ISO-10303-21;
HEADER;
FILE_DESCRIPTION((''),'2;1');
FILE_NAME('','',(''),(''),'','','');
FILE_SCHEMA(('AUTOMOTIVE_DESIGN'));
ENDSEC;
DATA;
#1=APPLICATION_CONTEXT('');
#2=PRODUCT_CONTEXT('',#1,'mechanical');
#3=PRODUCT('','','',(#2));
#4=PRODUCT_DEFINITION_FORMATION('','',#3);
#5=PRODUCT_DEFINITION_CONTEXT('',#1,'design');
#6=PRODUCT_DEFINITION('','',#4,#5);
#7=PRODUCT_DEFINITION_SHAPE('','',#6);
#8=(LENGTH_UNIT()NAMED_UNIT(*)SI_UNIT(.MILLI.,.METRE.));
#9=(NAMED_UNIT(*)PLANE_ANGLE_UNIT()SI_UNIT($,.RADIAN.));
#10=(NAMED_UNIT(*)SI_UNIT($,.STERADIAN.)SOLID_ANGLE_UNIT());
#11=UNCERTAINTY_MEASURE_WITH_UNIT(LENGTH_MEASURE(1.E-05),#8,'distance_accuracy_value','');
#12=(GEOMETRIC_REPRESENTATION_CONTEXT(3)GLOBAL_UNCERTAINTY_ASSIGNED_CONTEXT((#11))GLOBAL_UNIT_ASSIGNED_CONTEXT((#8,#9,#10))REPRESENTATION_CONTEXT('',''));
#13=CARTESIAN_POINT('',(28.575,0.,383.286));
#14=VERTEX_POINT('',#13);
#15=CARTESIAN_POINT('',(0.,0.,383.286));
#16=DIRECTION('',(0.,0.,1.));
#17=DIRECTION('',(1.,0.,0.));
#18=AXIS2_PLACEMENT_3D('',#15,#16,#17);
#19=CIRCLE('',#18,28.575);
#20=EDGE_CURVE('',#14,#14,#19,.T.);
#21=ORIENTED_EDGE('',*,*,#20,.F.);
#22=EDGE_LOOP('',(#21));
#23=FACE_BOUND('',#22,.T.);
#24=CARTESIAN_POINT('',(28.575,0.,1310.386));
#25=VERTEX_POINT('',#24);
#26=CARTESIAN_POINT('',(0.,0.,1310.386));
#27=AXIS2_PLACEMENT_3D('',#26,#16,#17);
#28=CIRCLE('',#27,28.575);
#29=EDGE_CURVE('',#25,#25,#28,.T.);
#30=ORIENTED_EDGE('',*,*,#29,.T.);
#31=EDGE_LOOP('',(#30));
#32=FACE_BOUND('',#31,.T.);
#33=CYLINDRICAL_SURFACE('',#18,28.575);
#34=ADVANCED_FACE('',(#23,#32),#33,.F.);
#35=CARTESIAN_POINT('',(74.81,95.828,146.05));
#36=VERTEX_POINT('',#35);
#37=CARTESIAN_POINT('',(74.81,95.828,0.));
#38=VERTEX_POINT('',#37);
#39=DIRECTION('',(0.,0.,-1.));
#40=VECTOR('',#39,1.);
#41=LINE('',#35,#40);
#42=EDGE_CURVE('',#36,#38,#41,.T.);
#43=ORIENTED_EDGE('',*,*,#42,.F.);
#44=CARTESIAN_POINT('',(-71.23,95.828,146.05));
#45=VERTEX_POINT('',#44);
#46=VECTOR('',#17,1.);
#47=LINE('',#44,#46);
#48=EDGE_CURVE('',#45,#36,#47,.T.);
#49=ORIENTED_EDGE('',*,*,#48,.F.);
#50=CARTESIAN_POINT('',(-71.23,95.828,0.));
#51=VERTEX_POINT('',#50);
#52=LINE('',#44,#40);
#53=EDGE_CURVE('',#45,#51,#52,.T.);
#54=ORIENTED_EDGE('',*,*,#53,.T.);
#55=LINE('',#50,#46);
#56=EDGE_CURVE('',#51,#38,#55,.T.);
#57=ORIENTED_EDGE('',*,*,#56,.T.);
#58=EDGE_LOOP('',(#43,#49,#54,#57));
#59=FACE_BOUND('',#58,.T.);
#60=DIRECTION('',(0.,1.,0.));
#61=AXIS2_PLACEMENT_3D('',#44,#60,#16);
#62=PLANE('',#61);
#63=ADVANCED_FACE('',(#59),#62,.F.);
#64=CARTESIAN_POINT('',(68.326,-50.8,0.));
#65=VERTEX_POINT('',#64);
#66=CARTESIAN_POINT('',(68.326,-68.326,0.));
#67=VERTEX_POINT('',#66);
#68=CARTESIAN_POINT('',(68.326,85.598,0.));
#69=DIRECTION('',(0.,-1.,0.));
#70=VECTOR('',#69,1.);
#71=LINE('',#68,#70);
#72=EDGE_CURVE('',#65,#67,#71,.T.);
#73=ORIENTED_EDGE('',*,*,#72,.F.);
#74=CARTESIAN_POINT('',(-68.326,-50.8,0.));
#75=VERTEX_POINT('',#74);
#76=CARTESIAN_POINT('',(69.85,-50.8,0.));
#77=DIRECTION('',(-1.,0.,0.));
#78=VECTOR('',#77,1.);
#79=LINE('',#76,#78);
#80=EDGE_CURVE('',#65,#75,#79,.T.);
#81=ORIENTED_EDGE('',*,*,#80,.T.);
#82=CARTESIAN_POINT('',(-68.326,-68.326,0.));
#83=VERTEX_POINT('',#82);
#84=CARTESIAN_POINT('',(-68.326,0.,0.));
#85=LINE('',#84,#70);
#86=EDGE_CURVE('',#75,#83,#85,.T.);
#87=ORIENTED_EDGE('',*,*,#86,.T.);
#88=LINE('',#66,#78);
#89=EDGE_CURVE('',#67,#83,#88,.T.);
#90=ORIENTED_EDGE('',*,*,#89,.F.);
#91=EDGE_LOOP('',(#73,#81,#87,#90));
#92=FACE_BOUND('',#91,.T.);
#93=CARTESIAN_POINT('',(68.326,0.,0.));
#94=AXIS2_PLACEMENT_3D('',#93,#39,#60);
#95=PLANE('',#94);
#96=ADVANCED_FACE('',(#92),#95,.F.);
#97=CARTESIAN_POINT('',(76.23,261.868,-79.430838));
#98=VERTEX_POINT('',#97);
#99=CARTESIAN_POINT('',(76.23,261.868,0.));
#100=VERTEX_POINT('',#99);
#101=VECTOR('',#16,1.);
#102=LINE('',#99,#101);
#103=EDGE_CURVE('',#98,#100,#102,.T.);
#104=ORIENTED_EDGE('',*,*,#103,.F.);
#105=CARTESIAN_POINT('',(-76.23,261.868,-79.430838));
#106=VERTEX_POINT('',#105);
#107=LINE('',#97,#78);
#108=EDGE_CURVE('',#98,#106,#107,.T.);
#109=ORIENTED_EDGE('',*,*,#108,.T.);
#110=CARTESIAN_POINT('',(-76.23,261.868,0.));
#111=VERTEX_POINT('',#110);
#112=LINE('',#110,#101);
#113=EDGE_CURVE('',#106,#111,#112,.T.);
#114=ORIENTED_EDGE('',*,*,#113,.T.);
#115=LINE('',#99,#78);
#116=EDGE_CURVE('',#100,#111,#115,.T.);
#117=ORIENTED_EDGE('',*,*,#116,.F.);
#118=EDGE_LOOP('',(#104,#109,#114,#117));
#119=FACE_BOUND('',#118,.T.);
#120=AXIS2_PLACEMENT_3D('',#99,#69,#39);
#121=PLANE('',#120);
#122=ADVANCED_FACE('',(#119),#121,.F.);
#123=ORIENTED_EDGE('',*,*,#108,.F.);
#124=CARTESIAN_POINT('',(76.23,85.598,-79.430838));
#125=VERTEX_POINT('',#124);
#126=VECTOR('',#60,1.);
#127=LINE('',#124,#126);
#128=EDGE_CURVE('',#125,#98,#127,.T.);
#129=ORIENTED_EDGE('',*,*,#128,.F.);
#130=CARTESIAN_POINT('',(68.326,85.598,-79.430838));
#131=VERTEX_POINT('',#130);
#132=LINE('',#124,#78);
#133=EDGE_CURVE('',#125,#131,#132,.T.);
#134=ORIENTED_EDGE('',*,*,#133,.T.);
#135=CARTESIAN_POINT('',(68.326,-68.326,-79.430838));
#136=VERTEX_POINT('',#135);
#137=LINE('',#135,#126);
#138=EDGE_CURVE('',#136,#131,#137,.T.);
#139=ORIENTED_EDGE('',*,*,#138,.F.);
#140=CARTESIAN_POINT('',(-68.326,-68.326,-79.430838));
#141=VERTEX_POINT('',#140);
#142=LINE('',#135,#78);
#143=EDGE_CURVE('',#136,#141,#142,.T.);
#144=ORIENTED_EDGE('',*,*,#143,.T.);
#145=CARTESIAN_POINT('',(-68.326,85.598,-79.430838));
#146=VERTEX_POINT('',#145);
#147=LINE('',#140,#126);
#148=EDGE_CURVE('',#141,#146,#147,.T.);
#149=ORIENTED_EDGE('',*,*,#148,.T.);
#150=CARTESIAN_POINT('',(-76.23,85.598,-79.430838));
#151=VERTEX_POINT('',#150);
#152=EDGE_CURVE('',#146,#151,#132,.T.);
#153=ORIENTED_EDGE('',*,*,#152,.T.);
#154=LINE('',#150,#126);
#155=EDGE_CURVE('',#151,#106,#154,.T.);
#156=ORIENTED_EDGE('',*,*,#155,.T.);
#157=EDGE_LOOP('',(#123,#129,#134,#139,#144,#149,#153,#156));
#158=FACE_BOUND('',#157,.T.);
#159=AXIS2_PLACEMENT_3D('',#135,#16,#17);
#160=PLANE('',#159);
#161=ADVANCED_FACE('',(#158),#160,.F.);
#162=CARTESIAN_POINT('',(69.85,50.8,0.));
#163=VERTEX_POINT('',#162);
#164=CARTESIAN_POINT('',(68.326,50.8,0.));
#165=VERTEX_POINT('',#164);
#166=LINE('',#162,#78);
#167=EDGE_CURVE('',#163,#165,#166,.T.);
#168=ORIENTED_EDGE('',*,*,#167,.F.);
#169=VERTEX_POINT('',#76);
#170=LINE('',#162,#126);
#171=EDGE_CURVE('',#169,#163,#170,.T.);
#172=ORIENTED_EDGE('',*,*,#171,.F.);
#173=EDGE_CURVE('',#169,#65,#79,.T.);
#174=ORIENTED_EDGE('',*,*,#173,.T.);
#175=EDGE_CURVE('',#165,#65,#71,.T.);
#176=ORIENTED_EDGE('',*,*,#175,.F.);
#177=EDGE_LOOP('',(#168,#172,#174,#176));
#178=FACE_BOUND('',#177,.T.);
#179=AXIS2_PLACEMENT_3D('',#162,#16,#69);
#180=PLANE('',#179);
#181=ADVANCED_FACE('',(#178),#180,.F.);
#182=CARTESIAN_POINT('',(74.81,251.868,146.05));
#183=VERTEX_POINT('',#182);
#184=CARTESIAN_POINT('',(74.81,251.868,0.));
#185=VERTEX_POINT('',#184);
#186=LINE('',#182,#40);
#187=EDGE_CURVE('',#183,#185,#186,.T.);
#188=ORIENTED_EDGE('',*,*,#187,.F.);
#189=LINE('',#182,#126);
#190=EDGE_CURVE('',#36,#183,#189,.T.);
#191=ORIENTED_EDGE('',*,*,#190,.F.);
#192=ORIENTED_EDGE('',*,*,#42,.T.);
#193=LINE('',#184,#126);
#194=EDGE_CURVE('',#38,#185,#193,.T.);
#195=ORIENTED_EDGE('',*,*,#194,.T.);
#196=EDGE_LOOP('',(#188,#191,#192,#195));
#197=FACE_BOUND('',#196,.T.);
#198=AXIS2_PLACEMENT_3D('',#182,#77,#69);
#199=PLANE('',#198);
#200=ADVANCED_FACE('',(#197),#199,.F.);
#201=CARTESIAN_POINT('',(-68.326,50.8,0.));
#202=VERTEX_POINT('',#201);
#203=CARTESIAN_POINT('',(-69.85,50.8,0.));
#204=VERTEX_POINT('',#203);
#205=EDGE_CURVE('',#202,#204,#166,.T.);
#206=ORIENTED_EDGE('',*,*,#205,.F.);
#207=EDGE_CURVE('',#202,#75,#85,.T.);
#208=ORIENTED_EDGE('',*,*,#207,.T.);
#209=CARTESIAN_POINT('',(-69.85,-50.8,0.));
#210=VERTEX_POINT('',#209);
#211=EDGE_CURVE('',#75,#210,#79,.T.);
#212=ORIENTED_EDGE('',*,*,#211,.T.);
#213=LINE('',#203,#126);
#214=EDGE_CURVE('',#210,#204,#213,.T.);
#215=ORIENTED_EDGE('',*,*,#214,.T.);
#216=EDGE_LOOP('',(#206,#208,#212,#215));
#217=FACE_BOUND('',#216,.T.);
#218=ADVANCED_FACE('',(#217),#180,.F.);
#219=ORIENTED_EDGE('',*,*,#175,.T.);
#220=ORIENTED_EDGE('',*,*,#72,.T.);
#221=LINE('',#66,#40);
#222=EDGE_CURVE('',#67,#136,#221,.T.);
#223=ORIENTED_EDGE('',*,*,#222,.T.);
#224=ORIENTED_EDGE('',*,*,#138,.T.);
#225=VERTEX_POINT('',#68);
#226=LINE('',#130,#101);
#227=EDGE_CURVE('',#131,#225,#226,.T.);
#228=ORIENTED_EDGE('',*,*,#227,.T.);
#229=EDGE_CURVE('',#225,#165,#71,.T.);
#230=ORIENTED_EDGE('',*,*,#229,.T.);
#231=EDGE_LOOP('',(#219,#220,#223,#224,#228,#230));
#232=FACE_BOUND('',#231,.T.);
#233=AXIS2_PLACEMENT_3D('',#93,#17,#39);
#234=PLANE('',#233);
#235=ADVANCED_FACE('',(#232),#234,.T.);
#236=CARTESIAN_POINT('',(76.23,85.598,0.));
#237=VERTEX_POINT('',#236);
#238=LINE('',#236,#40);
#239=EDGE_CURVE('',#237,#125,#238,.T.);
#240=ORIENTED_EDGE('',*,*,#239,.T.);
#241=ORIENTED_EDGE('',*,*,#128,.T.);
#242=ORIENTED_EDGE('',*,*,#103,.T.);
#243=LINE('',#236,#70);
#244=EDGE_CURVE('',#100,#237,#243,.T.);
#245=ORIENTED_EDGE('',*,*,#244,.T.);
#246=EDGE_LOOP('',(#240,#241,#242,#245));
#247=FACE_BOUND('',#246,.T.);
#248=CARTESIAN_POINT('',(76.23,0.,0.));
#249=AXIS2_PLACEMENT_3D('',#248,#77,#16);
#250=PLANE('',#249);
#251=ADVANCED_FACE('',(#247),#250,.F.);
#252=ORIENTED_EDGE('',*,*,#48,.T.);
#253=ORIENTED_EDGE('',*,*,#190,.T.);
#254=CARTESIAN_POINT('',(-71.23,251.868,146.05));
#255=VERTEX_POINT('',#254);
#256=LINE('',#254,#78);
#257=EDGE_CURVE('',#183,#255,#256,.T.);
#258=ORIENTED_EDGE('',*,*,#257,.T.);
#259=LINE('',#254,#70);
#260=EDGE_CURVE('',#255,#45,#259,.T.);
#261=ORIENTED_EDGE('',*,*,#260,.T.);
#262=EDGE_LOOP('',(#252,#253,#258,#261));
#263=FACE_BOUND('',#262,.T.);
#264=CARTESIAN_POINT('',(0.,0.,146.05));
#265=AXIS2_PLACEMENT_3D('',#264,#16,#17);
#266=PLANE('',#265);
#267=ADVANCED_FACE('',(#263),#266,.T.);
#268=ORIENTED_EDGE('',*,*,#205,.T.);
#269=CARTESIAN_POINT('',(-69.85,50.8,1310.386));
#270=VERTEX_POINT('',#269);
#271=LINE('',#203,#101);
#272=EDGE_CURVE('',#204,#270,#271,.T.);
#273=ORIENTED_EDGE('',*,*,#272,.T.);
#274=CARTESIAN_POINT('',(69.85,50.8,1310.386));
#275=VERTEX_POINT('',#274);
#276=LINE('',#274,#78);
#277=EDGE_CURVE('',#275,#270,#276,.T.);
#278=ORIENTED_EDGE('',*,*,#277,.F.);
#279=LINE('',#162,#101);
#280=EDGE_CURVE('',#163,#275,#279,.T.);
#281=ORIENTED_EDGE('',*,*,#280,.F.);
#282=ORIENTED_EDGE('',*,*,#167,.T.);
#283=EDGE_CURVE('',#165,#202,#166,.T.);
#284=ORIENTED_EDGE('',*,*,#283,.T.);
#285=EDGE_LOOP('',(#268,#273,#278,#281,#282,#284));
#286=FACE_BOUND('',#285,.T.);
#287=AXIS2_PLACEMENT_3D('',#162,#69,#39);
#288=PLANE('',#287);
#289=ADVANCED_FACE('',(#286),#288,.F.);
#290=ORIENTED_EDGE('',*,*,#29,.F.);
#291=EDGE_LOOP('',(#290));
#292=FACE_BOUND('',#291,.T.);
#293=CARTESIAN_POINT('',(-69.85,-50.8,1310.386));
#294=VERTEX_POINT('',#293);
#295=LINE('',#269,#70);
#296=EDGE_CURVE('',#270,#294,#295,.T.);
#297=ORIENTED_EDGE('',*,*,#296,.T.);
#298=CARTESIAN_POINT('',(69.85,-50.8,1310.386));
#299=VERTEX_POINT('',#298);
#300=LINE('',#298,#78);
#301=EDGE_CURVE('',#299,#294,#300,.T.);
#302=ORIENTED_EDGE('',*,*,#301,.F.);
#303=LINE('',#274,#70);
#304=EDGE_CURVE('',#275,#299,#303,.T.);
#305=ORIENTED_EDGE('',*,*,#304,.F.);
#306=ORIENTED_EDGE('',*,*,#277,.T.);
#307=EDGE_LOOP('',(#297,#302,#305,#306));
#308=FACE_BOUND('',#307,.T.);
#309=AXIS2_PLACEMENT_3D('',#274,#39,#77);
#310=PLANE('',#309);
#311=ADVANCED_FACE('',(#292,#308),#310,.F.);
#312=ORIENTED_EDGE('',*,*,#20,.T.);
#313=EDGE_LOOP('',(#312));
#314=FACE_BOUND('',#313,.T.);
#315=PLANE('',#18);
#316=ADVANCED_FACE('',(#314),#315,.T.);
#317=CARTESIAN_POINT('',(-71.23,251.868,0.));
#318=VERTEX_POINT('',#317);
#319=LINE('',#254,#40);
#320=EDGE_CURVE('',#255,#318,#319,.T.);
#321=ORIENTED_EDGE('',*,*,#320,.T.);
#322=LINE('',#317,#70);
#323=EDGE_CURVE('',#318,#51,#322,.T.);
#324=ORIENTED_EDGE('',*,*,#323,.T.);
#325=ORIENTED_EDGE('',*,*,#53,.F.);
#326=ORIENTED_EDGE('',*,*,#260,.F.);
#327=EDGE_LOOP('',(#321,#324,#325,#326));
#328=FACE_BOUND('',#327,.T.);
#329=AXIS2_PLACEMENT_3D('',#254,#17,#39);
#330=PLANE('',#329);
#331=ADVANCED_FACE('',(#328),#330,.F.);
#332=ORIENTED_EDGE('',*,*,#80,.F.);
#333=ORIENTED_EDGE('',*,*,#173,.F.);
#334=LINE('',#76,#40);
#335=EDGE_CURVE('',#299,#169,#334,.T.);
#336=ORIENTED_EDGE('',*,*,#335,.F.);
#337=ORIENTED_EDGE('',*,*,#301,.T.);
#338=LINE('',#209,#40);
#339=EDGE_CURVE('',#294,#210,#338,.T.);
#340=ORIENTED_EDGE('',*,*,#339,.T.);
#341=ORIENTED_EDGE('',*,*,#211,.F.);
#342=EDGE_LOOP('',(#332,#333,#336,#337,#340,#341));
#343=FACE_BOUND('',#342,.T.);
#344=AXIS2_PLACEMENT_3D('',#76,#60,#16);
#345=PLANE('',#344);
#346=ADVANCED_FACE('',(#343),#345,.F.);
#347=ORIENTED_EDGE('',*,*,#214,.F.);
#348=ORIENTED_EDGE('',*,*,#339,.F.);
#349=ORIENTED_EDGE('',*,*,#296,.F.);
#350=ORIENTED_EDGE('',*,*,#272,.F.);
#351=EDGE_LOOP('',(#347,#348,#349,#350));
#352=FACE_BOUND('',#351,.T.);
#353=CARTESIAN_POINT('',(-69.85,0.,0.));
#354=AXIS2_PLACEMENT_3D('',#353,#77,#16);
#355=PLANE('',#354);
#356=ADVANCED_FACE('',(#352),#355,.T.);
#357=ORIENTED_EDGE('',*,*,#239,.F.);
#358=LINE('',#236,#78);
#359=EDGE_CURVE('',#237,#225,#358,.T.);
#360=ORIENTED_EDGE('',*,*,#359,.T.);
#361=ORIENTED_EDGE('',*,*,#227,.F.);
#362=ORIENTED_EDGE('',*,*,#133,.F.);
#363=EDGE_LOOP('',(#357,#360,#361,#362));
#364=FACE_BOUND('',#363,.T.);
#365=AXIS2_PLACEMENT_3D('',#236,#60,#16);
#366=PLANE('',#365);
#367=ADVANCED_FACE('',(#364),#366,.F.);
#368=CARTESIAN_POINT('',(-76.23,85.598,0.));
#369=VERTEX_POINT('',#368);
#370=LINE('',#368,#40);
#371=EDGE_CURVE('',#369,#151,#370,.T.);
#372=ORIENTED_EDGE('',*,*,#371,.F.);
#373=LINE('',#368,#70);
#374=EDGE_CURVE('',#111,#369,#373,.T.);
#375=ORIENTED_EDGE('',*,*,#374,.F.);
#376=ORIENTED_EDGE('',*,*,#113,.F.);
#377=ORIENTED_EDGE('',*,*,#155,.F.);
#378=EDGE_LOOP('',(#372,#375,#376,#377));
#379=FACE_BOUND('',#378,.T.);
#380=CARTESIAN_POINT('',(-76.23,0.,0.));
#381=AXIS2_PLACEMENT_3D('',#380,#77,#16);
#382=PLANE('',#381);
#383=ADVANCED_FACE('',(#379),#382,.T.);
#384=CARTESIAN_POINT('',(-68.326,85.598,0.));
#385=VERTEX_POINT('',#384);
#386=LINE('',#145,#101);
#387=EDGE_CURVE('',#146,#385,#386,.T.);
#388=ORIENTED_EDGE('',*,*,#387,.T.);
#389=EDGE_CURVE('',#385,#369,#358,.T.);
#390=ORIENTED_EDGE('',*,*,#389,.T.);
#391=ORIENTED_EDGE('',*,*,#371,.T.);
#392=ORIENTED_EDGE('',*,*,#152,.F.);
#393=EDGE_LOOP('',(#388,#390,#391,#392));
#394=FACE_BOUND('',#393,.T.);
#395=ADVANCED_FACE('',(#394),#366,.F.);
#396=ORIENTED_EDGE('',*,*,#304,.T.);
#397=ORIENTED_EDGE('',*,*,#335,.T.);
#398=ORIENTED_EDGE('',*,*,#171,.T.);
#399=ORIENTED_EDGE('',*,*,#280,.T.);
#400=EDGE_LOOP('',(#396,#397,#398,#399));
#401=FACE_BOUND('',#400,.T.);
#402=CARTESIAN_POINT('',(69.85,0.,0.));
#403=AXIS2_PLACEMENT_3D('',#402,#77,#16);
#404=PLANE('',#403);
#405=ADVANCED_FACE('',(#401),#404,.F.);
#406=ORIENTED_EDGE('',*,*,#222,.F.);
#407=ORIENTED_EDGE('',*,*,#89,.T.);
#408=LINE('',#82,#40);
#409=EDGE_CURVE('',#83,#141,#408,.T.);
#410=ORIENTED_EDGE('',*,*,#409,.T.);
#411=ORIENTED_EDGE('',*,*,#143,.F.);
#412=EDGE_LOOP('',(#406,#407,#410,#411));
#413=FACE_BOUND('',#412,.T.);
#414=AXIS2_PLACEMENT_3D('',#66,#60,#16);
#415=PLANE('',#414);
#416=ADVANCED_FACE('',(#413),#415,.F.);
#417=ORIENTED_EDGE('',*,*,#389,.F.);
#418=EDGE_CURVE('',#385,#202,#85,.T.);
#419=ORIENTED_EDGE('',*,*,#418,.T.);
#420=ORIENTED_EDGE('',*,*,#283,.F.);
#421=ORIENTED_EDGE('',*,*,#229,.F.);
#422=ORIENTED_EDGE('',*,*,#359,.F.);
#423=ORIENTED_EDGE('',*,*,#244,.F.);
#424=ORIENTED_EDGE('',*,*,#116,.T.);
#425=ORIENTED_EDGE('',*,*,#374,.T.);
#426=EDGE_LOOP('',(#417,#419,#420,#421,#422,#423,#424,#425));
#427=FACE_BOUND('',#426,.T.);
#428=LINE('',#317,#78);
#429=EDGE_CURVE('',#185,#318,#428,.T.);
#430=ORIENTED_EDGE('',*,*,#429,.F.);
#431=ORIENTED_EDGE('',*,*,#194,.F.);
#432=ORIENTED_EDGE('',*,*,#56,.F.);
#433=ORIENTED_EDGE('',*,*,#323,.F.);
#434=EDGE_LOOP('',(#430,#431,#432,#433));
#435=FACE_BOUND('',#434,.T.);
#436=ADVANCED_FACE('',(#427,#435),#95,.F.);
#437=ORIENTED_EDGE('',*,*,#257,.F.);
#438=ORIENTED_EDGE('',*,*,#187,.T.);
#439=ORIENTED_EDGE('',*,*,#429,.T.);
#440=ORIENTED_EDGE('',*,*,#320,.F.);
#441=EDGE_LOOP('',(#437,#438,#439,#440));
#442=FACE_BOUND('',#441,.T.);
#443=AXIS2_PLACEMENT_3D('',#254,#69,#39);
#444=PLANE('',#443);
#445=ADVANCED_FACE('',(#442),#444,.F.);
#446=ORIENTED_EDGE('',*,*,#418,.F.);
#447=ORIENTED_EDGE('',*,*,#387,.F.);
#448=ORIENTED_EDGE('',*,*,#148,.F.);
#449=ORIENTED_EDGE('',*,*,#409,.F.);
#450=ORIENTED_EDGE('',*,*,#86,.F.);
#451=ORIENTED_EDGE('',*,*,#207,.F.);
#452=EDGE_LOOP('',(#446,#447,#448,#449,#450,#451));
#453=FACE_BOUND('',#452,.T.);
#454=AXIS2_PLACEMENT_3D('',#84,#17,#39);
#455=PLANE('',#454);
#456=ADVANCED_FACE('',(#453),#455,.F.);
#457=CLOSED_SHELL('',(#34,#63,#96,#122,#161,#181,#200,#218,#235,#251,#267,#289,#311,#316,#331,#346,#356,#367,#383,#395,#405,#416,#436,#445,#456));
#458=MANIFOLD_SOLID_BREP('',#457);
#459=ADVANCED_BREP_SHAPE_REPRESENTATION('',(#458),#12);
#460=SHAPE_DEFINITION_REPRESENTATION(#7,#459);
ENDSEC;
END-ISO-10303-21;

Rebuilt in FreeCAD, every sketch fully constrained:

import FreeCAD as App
import Part
import Sketcher
from FreeCAD import Vector
Q = App.Units.Quantity

doc = App.newDocument("Part")
body = doc.addObject("PartDesign::Body", "Body")

sketch1 = body.newObject("Sketcher::SketchObject", "Sketch")
sketch1.AttachmentSupport = (doc.getObject("YZ_Plane"), [""])
sketch1.MapMode = "FlatFace"
sketch1.addGeometry([
    Part.LineSegment(Vector(50.8, 1310.386, 0), Vector(-50.8, 1310.386, 0)),
    Part.LineSegment(Vector(-50.8, 1310.386, 0), Vector(-50.8, 0, 0)),
    Part.LineSegment(Vector(-50.8, 0, 0), Vector(50.8, 0, 0)),
    Part.LineSegment(Vector(50.8, 0, 0), Vector(50.8, 1310.386, 0)),
], False)
sketch1.addConstraint([
    Sketcher.Constraint("Coincident", 0, 2, 1, 1),
    Sketcher.Constraint("Coincident", 1, 2, 2, 1),
    Sketcher.Constraint("Coincident", 2, 2, 3, 1),
    Sketcher.Constraint("Coincident", 3, 2, 0, 1),
    Sketcher.Constraint("Horizontal", 0),
    Sketcher.Constraint("Vertical", 1),
    Sketcher.Constraint("Horizontal", 2),
    Sketcher.Constraint("Vertical", 3),
    Sketcher.Constraint("Symmetric", 1, 2, 2, 2, -1, 1),
    Sketcher.Constraint("DistanceX", 0, 2, 0, 1, Q("4 in")),
    Sketcher.Constraint("DistanceY", 1, 2, 1, 1, Q("51.59 in")),
])
pad1 = body.newObject("PartDesign::Pad", "Pad")
pad1.Profile = sketch1
pad1.Length = Q("5.5 in")
pad1.Midplane = True

sketch2 = body.newObject("Sketcher::SketchObject", "Sketch001")
sketch2.AttachmentSupport = (doc.getObject("YZ_Plane"), [""])
sketch2.MapMode = "FlatFace"
sketch2.addGeometry([
    Part.LineSegment(Vector(-68.326, 0, 0), Vector(-68.326, -79.430838, 0)),
    Part.LineSegment(Vector(-68.326, -79.430838, 0), Vector(85.598, -79.430838, 0)),
    Part.LineSegment(Vector(85.598, -79.430838, 0), Vector(85.598, 0, 0)),
    Part.LineSegment(Vector(85.598, 0, 0), Vector(-68.326, 0, 0)),
], False)
sketch2.addConstraint([
    Sketcher.Constraint("Coincident", 0, 2, 1, 1),
    Sketcher.Constraint("Coincident", 1, 2, 2, 1),
    Sketcher.Constraint("Coincident", 2, 2, 3, 1),
    Sketcher.Constraint("Coincident", 3, 2, 0, 1),
    Sketcher.Constraint("Vertical", 0),
    Sketcher.Constraint("Horizontal", 1),
    Sketcher.Constraint("Vertical", 2),
    Sketcher.Constraint("Horizontal", 3),
    Sketcher.Constraint("PointOnObject", 2, 2, -1),
    Sketcher.Constraint("DistanceX", 1, 1, 1, 2, Q("6.06 in")),
    Sketcher.Constraint("DistanceX", 0, 2, -1, 1, Q("2.69 in")),
    Sketcher.Constraint("DistanceY", 0, 2, 0, 1, Q("79.430838 mm")),
])
pad2 = body.newObject("PartDesign::Pad", "Pad001")
pad2.Profile = sketch2
pad2.Length = Q("5.38 in")
pad2.Midplane = True

sketch3 = body.newObject("Sketcher::SketchObject", "Sketch002")
sketch3.AttachmentSupport = (doc.getObject("YZ_Plane"), [""])
sketch3.MapMode = "FlatFace"
sketch3.addGeometry([
    Part.LineSegment(Vector(261.868, 0, 0), Vector(85.598, 0, 0)),
    Part.LineSegment(Vector(85.598, 0, 0), Vector(85.598, -79.430838, 0)),
    Part.LineSegment(Vector(85.598, -79.430838, 0), Vector(261.868, -79.430838, 0)),
    Part.LineSegment(Vector(261.868, -79.430838, 0), Vector(261.868, 0, 0)),
], False)
sketch3.addConstraint([
    Sketcher.Constraint("Coincident", 0, 2, 1, 1),
    Sketcher.Constraint("Coincident", 1, 2, 2, 1),
    Sketcher.Constraint("Coincident", 2, 2, 3, 1),
    Sketcher.Constraint("Coincident", 3, 2, 0, 1),
    Sketcher.Constraint("Horizontal", 0),
    Sketcher.Constraint("Vertical", 1),
    Sketcher.Constraint("Horizontal", 2),
    Sketcher.Constraint("Vertical", 3),
    Sketcher.Constraint("PointOnObject", 0, 2, -1),
    Sketcher.Constraint("DistanceX", -1, 1, 0, 2, Q("3.37 in")),
    Sketcher.Constraint("DistanceX", 0, 2, 0, 1, Q("176.27 mm")),
    Sketcher.Constraint("DistanceY", 1, 2, 1, 1, Q("79.430838 mm")),
])
pad3 = body.newObject("PartDesign::Pad", "Pad002")
pad3.Profile = sketch3
pad3.Length = 152.46
pad3.Midplane = True

sketch4 = body.newObject("Sketcher::SketchObject", "Sketch003")
sketch4.AttachmentSupport = (doc.getObject("XY_Plane"), [""])
sketch4.MapMode = "FlatFace"
sketch4.addGeometry([
    Part.LineSegment(Vector(-71.23, 251.868, 0), Vector(-71.23, 95.828, 0)),
    Part.LineSegment(Vector(-71.23, 95.828, 0), Vector(74.81, 95.828, 0)),
    Part.LineSegment(Vector(74.81, 95.828, 0), Vector(74.81, 251.868, 0)),
    Part.LineSegment(Vector(74.81, 251.868, 0), Vector(-71.23, 251.868, 0)),
], False)
sketch4.addConstraint([
    Sketcher.Constraint("Coincident", 0, 2, 1, 1),
    Sketcher.Constraint("Coincident", 1, 2, 2, 1),
    Sketcher.Constraint("Coincident", 2, 2, 3, 1),
    Sketcher.Constraint("Coincident", 3, 2, 0, 1),
    Sketcher.Constraint("Vertical", 0),
    Sketcher.Constraint("Horizontal", 1),
    Sketcher.Constraint("Vertical", 2),
    Sketcher.Constraint("Horizontal", 3),
    Sketcher.Constraint("DistanceX", 1, 1, 1, 2, Q("146.04 mm")),
    Sketcher.Constraint("DistanceY", 0, 2, 0, 1, Q("156.04 mm")),
    Sketcher.Constraint("DistanceX", 0, 2, -1, 1, Q("71.23 mm")),
    Sketcher.Constraint("DistanceY", -1, 1, 0, 2, Q("95.828 mm")),
])
pad4 = body.newObject("PartDesign::Pad", "Pad003")
pad4.Profile = sketch4
pad4.Length = Q("5.75 in")

sketch5 = body.newObject("Sketcher::SketchObject", "Sketch004")
sketch5.AttachmentSupport = (doc.getObject("XY_Plane"), [""])
sketch5.MapMode = "FlatFace"
sketch5.AttachmentOffset = App.Placement(Vector(0, 0, 51.59 * 25.4), App.Rotation())
sketch5.addGeometry(Part.Circle(Vector(0, 0, 0), Vector(0, 0, 1), 28.575), False)
sketch5.addConstraint([
    Sketcher.Constraint("Coincident", 0, 3, -1, 1),
    Sketcher.Constraint("Diameter", 0, Q("2.25 in")),
])
pocket1 = body.newObject("PartDesign::Pocket", "Pocket")
pocket1.Profile = sketch5
pocket1.Length = Q("36.5 in")

doc.recompute()
